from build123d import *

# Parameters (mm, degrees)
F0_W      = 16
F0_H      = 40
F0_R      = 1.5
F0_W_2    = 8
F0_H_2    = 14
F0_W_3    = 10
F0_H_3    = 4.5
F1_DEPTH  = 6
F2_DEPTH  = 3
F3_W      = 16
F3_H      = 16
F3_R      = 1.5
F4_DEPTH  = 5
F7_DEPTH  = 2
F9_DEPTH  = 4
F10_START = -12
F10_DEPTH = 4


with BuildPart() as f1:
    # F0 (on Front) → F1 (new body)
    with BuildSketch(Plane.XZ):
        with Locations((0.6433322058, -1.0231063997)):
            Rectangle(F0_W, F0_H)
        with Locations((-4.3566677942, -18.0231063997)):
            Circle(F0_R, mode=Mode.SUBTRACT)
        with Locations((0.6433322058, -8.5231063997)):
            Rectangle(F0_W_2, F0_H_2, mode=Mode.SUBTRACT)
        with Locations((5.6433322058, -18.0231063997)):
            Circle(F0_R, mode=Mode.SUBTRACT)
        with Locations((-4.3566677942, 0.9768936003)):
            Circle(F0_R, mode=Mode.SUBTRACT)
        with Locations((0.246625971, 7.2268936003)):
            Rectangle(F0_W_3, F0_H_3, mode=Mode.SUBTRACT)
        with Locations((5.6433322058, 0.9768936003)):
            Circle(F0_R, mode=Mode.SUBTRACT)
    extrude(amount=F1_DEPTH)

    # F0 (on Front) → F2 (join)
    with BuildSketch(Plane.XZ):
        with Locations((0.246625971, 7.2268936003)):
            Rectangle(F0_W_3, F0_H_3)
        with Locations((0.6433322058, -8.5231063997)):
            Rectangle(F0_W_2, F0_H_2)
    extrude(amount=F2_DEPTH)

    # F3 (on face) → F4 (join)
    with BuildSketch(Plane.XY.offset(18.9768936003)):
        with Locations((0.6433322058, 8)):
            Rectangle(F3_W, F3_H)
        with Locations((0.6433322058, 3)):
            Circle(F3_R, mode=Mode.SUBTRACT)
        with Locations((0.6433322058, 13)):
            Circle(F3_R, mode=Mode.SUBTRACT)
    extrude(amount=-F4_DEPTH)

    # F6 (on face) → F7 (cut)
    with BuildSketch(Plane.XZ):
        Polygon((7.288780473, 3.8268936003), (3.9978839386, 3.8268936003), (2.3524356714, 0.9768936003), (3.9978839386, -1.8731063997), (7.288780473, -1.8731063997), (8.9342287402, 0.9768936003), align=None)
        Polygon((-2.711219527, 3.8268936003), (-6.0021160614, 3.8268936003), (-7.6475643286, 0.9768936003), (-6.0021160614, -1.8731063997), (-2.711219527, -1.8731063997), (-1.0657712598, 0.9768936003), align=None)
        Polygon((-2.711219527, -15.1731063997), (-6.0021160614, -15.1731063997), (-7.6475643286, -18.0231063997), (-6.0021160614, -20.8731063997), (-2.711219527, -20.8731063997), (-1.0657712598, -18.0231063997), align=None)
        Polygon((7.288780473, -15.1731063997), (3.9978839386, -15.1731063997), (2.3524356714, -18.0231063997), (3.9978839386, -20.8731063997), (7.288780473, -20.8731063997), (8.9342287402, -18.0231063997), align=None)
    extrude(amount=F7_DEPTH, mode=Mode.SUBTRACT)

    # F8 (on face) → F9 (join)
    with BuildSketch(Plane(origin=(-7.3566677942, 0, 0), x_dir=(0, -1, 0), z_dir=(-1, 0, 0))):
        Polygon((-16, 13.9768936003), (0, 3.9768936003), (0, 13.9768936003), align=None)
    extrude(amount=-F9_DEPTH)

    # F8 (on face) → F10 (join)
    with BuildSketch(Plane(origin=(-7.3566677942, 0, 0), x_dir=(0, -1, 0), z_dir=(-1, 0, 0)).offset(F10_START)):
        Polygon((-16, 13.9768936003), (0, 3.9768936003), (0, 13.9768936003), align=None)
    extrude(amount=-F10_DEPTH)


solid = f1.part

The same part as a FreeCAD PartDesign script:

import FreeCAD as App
import Part
import Sketcher

V = App.Vector
Q = App.Units.Quantity


def add_polygon(sketch, points):
    """Adds a closed chain of lines whose ends are joined by coincident constraints."""
    first, n = sketch.GeometryCount, len(points)
    for a, b in zip(points, points[1:] + points[:1]):
        sketch.addGeometry(Part.LineSegment(App.Vector(*a, 0), App.Vector(*b, 0)), False)
    for i in range(n):
        sketch.addConstraint(Sketcher.Constraint("Coincident", first + i, 2, first + (i + 1) % n, 1))

doc = App.newDocument("Part")
params = doc.addObject("Spreadsheet::Sheet", "Params")
for row, (alias, value) in enumerate([
    ("sketch1_diameter", "3 mm"),
    ("sketch1_width", "16 mm"),
    ("sketch1_width2", "8 mm"),
    ("sketch1_width3", "10 mm"),
    ("sketch1_height", "40 mm"),
    ("pad1_length", "6 mm"),
    ("sketch2_width", "10 mm"),
    ("sketch2_width2", "8 mm"),
    ("sketch2_height", "14 mm"),
    ("sketch2_height2", "4.5 mm"),
    ("pad2_length", "3 mm"),
    ("sketch3_diameter", "3 mm"),
    ("sketch3_width", "16 mm"),
    ("pad3_length", "5 mm"),
    ("pocket1_length", "2 mm"),
    ("sketch5_width", "16 mm"),
    ("sketch5_height", "10 mm"),
    ("pad4_length", "4 mm"),
    ("sketch6_width", "16 mm"),
    ("sketch6_height", "10 mm"),
    ("pad5_length", "4 mm"),
], start=1):
    params.set(f"A{row}", alias)
    params.set(f"B{row}", "=" + value)
    params.setAlias(f"B{row}", alias)

body = doc.addObject("PartDesign::Body", "Body")

# Sketch on XZ plane
sketch1 = body.newObject("Sketcher::SketchObject", "Sketch")
sketch1.AttachmentSupport = (doc.getObject("XZ_Plane"), [""])
sketch1.MapMode = "FlatFace"
add_polygon(sketch1, [(-7.4, 19), (-7.4, -21), (8.6, -21), (8.6, 19)])  # lines 0-3
sketch1.addGeometry(Part.Circle(V(-4.4, -18, 0), V(0, 0, 1), 1.5), False)  # 4
sketch1.addGeometry(Part.Circle(V(5.6, -18, 0), V(0, 0, 1), 1.5), False)  # 5
add_polygon(sketch1, [(4.6, -15.5), (-3.4, -15.5), (-3.4, -1.5), (4.6, -1.5)])  # lines 6-9
sketch1.addGeometry(Part.Circle(V(-4.4, 1, 0), V(0, 0, 1), 1.5), False)  # 10
add_polygon(sketch1, [(5.2, 5), (-4.8, 5), (-4.8, 9.5), (5.2, 9.5)])  # lines 11-14
sketch1.addGeometry(Part.Circle(V(5.6, 1, 0), V(0, 0, 1), 1.5), False)  # 15
sketch1.addConstraint(Sketcher.Constraint("Vertical", 0))
sketch1.addConstraint(Sketcher.Constraint("Horizontal", 1))
sketch1.addConstraint(Sketcher.Constraint("Vertical", 2))
sketch1.addConstraint(Sketcher.Constraint("Horizontal", 3))
sketch1.addConstraint(Sketcher.Constraint("Horizontal", 6))
sketch1.addConstraint(Sketcher.Constraint("Vertical", 7))
sketch1.addConstraint(Sketcher.Constraint("Horizontal", 8))
sketch1.addConstraint(Sketcher.Constraint("Vertical", 9))
sketch1.addConstraint(Sketcher.Constraint("Horizontal", 11))
sketch1.addConstraint(Sketcher.Constraint("Vertical", 12))
sketch1.addConstraint(Sketcher.Constraint("Horizontal", 13))
sketch1.addConstraint(Sketcher.Constraint("Vertical", 14))
sketch1.addConstraint(Sketcher.Constraint("Equal", 4, 5))
sketch1.addConstraint(Sketcher.Constraint("Equal", 5, 10))
sketch1.addConstraint(Sketcher.Constraint("Equal", 10, 15))
sketch1.addConstraint(Sketcher.Constraint("Horizontal", 4, 3, 5, 3))
sketch1.addConstraint(Sketcher.Constraint("Horizontal", 10, 3, 15, 3))
sketch1.addConstraint(Sketcher.Constraint("Vertical", 4, 3, 10, 3))
sketch1.addConstraint(Sketcher.Constraint("Vertical", 5, 3, 15, 3))
sketch1.addConstraint(Sketcher.Constraint("Diameter", 4, Q("3 mm")))
sketch1.addConstraint(Sketcher.Constraint("DistanceX", 1, 1, 1, 2, Q("16 mm")))
sketch1.addConstraint(Sketcher.Constraint("DistanceX", 6, 2, 6, 1, Q("8 mm")))
sketch1.addConstraint(Sketcher.Constraint("DistanceX", 11, 2, 11, 1, Q("10 mm")))
sketch1.addConstraint(Sketcher.Constraint("DistanceY", 0, 2, 0, 1, Q("40 mm")))
sketch1.addConstraint(Sketcher.Constraint("DistanceY", 7, 1, 7, 2, Q("14 mm")))
sketch1.addConstraint(Sketcher.Constraint("DistanceY", 12, 1, 12, 2, Q("4.5 mm")))
sketch1.addConstraint(Sketcher.Constraint("DistanceX", 4, 3, 5, 3, Q("10 mm")))
sketch1.addConstraint(Sketcher.Constraint("DistanceY", 4, 3, 10, 3, Q("19 mm")))
sketch1.addConstraint(Sketcher.Constraint("DistanceX", 0, 2, 4, 3, Q("3 mm")))
sketch1.addConstraint(Sketcher.Constraint("DistanceY", 0, 2, 4, 3, Q("3 mm")))
sketch1.addConstraint(Sketcher.Constraint("DistanceX", 4, 3, 6, 2, Q("1 mm")))
sketch1.addConstraint(Sketcher.Constraint("DistanceY", 10, 3, 11, 2, Q("4 mm")))
sketch1.addConstraint(Sketcher.Constraint("DistanceY", 7, 2, 12, 2, Q("11 mm")))
sketch1.addConstraint(Sketcher.Constraint("DistanceX", 4, 3, -1, 1, Q("4.356668 mm")))
sketch1.addConstraint(Sketcher.Constraint("DistanceY", 4, 3, -1, 1, Q("18.023106 mm")))
sketch1.addConstraint(Sketcher.Constraint("DistanceX", 11, 2, -1, 1, Q("4.753374 mm")))
sketch1.setExpression("Constraints[31]", "Params.sketch1_diameter")
sketch1.setExpression("Constraints[32]", "Params.sketch1_width")
sketch1.setExpression("Constraints[33]", "Params.sketch1_width2")
sketch1.setExpression("Constraints[34]", "Params.sketch1_width3")
sketch1.setExpression("Constraints[35]", "Params.sketch1_height")
pad1 = body.newObject("PartDesign::Pad", "Pad")
pad1.Profile = sketch1
pad1.setExpression("Length", "Params.pad1_length")

# Sketch on XZ plane
sketch2 = body.newObject("Sketcher::SketchObject", "Sketch001")
sketch2.AttachmentSupport = (doc.getObject("XZ_Plane"), [""])
sketch2.MapMode = "FlatFace"
add_polygon(sketch2, [(-4.8, 9.5), (-4.8, 5), (5.2, 5), (5.2, 9.5)])  # lines 0-3
add_polygon(sketch2, [(-3.4, -1.5), (-3.4, -15.5), (4.6, -15.5), (4.6, -1.5)])  # lines 4-7
sketch2.addConstraint(Sketcher.Constraint("Vertical", 0))
sketch2.addConstraint(Sketcher.Constraint("Horizontal", 1))
sketch2.addConstraint(Sketcher.Constraint("Vertical", 2))
sketch2.addConstraint(Sketcher.Constraint("Horizontal", 3))
sketch2.addConstraint(Sketcher.Constraint("Vertical", 4))
sketch2.addConstraint(Sketcher.Constraint("Horizontal", 5))
sketch2.addConstraint(Sketcher.Constraint("Vertical", 6))
sketch2.addConstraint(Sketcher.Constraint("Horizontal", 7))
sketch2.addConstraint(Sketcher.Constraint("DistanceX", 1, 1, 1, 2, Q("10 mm")))
sketch2.addConstraint(Sketcher.Constraint("DistanceX", 5, 1, 5, 2, Q("8 mm")))
sketch2.addConstraint(Sketcher.Constraint("DistanceY", 4, 2, 4, 1, Q("14 mm")))
sketch2.addConstraint(Sketcher.Constraint("DistanceY", 0, 2, 0, 1, Q("4.5 mm")))
sketch2.addConstraint(Sketcher.Constraint("DistanceY", 4, 2, 3, 2, Q("25 mm")))
sketch2.addConstraint(Sketcher.Constraint("DistanceX", 0, 2, -1, 1, Q("4.753374 mm")))
sketch2.addConstraint(Sketcher.Constraint("DistanceY", -1, 1, 0, 2, Q("4.976894 mm")))
sketch2.addConstraint(Sketcher.Constraint("DistanceX", 4, 2, -1, 1, Q("3.356668 mm")))
sketch2.setExpression("Constraints[16]", "Params.sketch2_width")
sketch2.setExpression("Constraints[17]", "Params.sketch2_width2")
sketch2.setExpression("Constraints[18]", "Params.sketch2_height")
sketch2.setExpression("Constraints[19]", "Params.sketch2_height2")
pad2 = body.newObject("PartDesign::Pad", "Pad001")
pad2.Profile = sketch2
pad2.setExpression("Length", "Params.pad2_length")

# Sketch on XY plane
sketch3 = body.newObject("Sketcher::SketchObject", "Sketch002")
sketch3.AttachmentSupport = (doc.getObject("XY_Plane"), [""])
sketch3.MapMode = "FlatFace"
sketch3.AttachmentOffset = App.Placement(V(0, 0, 18.976894), App.Rotation())
add_polygon(sketch3, [(-7.4, 16), (-7.4, 0), (8.6, 0), (8.6, 16)])  # lines 0-3
sketch3.addGeometry(Part.Circle(V(0.6, 3, 0), V(0, 0, 1), 1.5), False)  # 4
sketch3.addGeometry(Part.Circle(V(0.6, 13, 0), V(0, 0, 1), 1.5), False)  # 5
sketch3.addConstraint(Sketcher.Constraint("Vertical", 0))
sketch3.addConstraint(Sketcher.Constraint("Horizontal", 1))
sketch3.addConstraint(Sketcher.Constraint("Vertical", 2))
sketch3.addConstraint(Sketcher.Constraint("Horizontal", 3))
sketch3.addConstraint(Sketcher.Constraint("Equal", 4, 5))
sketch3.addConstraint(Sketcher.Constraint("PointOnObject", 0, 2, -1))
sketch3.addConstraint(Sketcher.Constraint("Vertical", 4, 3, 5, 3))
sketch3.addConstraint(Sketcher.Constraint("Equal", 3, 0))
sketch3.addConstraint(Sketcher.Constraint("Diameter", 4, Q("3 mm")))
sketch3.addConstraint(Sketcher.Constraint("DistanceX", 1, 1, 1, 2, Q("16 mm")))
sketch3.addConstraint(Sketcher.Constraint("DistanceY", -1, 1, 4, 3, Q("3 mm")))
sketch3.addConstraint(Sketcher.Constraint("DistanceY", -1, 1, 5, 3, Q("13 mm")))
sketch3.addConstraint(Sketcher.Constraint("DistanceX", 0, 2, 4, 3, Q("8 mm")))
sketch3.addConstraint(Sketcher.Constraint("DistanceX", -1, 1, 4, 3, Q("0.643332 mm")))
sketch3.setExpression("Constraints[12]", "Params.sketch3_diameter")
sketch3.setExpression("Constraints[13]", "Params.sketch3_width")
pad3 = body.newObject("PartDesign::Pad", "Pad002")
pad3.Profile = sketch3
pad3.setExpression("Length", "Params.pad3_length")
pad3.Reversed = True

# Sketch on XZ plane
sketch4 = body.newObject("Sketcher::SketchObject", "Sketch003")
sketch4.AttachmentSupport = (doc.getObject("XZ_Plane"), [""])
sketch4.MapMode = "FlatFace"
add_polygon(sketch4, [(7.3, 3.8), (4, 3.8), (2.4, 1), (4, -1.9), (7.3, -1.9), (8.9, 1)])  # lines 0-5
add_polygon(sketch4, [(-2.7, 3.8), (-6, 3.8), (-7.6, 1), (-6, -1.9), (-2.7, -1.9), (-1.1, 1)])  # lines 6-11
add_polygon(sketch4, [(-2.7, -15.2), (-6, -15.2), (-7.6, -18), (-6, -20.9), (-2.7, -20.9), (-1.1, -18)])  # lines 12-17
add_polygon(sketch4, [(7.3, -15.2), (4, -15.2), (2.4, -18), (4, -20.9), (7.3, -20.9), (8.9, -18)])  # lines 18-23
sketch4.addConstraint(Sketcher.Constraint("Horizontal", 0))
sketch4.addConstraint(Sketcher.Constraint("Horizontal", 3))
sketch4.addConstraint(Sketcher.Constraint("Horizontal", 6))
sketch4.addConstraint(Sketcher.Constraint("Horizontal", 9))
sketch4.addConstraint(Sketcher.Constraint("Horizontal", 12))
sketch4.addConstraint(Sketcher.Constraint("Horizontal", 15))
sketch4.addConstraint(Sketcher.Constraint("Horizontal", 18))
sketch4.addConstraint(Sketcher.Constraint("Horizontal", 21))
sketch4.addConstraint(Sketcher.Constraint("Parallel", 1, 4))
sketch4.addConstraint(Sketcher.Constraint("Parallel", 2, 5))
sketch4.addConstraint(Sketcher.Constraint("Parallel", 4, 7))
sketch4.addConstraint(Sketcher.Constraint("Parallel", 5, 8))
sketch4.addConstraint(Sketcher.Constraint("Parallel", 7, 10))
sketch4.addConstraint(Sketcher.Constraint("Parallel", 8, 11))
sketch4.addConstraint(Sketcher.Constraint("Parallel", 10, 13))
sketch4.addConstraint(Sketcher.Constraint("Parallel", 11, 14))
sketch4.addConstraint(Sketcher.Constraint("Parallel", 13, 16))
sketch4.addConstraint(Sketcher.Constraint("Parallel", 14, 17))
sketch4.addConstraint(Sketcher.Constraint("Parallel", 16, 19))
sketch4.addConstraint(Sketcher.Constraint("Parallel", 17, 20))
sketch4.addConstraint(Sketcher.Constraint("Parallel", 19, 22))
sketch4.addConstraint(Sketcher.Constraint("Parallel", 20, 23))
sketch4.addConstraint(Sketcher.Constraint("Horizontal", 1, 2, 4, 2))
sketch4.addConstraint(Sketcher.Constraint("Horizontal", 5, 2, 6, 2))
sketch4.addConstraint(Sketcher.Constraint("Horizontal", 4, 2, 7, 2))
sketch4.addConstraint(Sketcher.Constraint("Horizontal", 3, 2, 8, 2))
sketch4.addConstraint(Sketcher.Constraint("Horizontal", 7, 2, 10, 2))
sketch4.addConstraint(Sketcher.Constraint("Horizontal", 13, 2, 16, 2))
sketch4.addConstraint(Sketcher.Constraint("Horizontal", 17, 2, 18, 2))
sketch4.addConstraint(Sketcher.Constraint("Horizontal", 16, 2, 19, 2))
sketch4.addConstraint(Sketcher.Constraint("Horizontal", 15, 2, 20, 2))
sketch4.addConstraint(Sketcher.Constraint("Horizontal", 19, 2, 22, 2))
sketch4.addConstraint(Sketcher.Constraint("Vertical", 0, 2, 2, 2))
sketch4.addConstraint(Sketcher.Constraint("Vertical", 3, 2, 5, 2))
sketch4.addConstraint(Sketcher.Constraint("Vertical", 8, 2, 12, 2))
sketch4.addConstraint(Sketcher.Constraint("Vertical", 7, 2, 13, 2))
sketch4.addConstraint(Sketcher.Constraint("Vertical", 12, 2, 14, 2))
sketch4.addConstraint(Sketcher.Constraint("Vertical", 11, 2, 15, 2))
sketch4.addConstraint(Sketcher.Constraint("Vertical", 2, 2, 18, 2))
sketch4.addConstraint(Sketcher.Constraint("Vertical", 5, 2, 21, 2))
sketch4.addConstraint(Sketcher.Constraint("Equal", 3, 6))
sketch4.addConstraint(Sketcher.Constraint("Angle", 1, Q("-120 deg")))
sketch4.addConstraint(Sketcher.Constraint("DistanceX", 6, 2, 0, 2, Q("10 mm")))
sketch4.addConstraint(Sketcher.Constraint("DistanceY", 13, 2, 7, 2, Q("19 mm")))
sketch4.addConstraint(Sketcher.Constraint("DistanceY", 2, 2, 0, 2, Q("5.7 mm")))
sketch4.addConstraint(Sketcher.Constraint("DistanceX", 0, 2, 0, 1, Q("3.290897 mm")))
sketch4.addConstraint(Sketcher.Constraint("DistanceX", -1, 1, 3, 2, Q("7.28878 mm")))
sketch4.addConstraint(Sketcher.Constraint("DistanceY", -1, 1, 0, 2, Q("3.826894 mm")))
pocket1 = body.newObject("PartDesign::Pocket", "Pocket")
pocket1.Profile = sketch4
pocket1.setExpression("Length", "Params.pocket1_length")
pocket1.Reversed = True

# Sketch on YZ plane
sketch5 = body.newObject("Sketcher::SketchObject", "Sketch004")
sketch5.AttachmentSupport = (doc.getObject("YZ_Plane"), [""])
sketch5.MapMode = "FlatFace"
sketch5.AttachmentOffset = App.Placement(V(0, 0, -7.356668), App.Rotation())
add_polygon(sketch5, [(16, 14), (0, 4), (0, 14)])  # lines 0-2
sketch5.addConstraint(Sketcher.Constraint("Vertical", 1))
sketch5.addConstraint(Sketcher.Constraint("Horizontal", 2))
sketch5.addConstraint(Sketcher.Constraint("PointOnObject", 0, 2, -2))
sketch5.addConstraint(Sketcher.Constraint("DistanceX", 2, 1, 2, 2, Q("16 mm")))
sketch5.addConstraint(Sketcher.Constraint("DistanceY", 1, 1, 1, 2, Q("10 mm")))
sketch5.addConstraint(Sketcher.Constraint("DistanceY", -1, 1, 0, 2, Q("3.976894 mm")))
sketch5.setExpression("Constraints[6]", "Params.sketch5_width")
sketch5.setExpression("Constraints[7]", "Params.sketch5_height")
pad4 = body.newObject("PartDesign::Pad", "Pad003")
pad4.Profile = sketch5
pad4.setExpression("Length", "Params.pad4_length")

# Sketch on YZ plane
sketch6 = body.newObject("Sketcher::SketchObject", "Sketch005")
sketch6.AttachmentSupport = (doc.getObject("YZ_Plane"), [""])
sketch6.MapMode = "FlatFace"
sketch6.AttachmentOffset = App.Placement(V(0, 0, 4.643332), App.Rotation())
add_polygon(sketch6, [(16, 14), (0, 4), (0, 14)])  # lines 0-2
sketch6.addConstraint(Sketcher.Constraint("Vertical", 1))
sketch6.addConstraint(Sketcher.Constraint("Horizontal", 2))
sketch6.addConstraint(Sketcher.Constraint("PointOnObject", 0, 2, -2))
sketch6.addConstraint(Sketcher.Constraint("DistanceX", 2, 1, 2, 2, Q("16 mm")))
sketch6.addConstraint(Sketcher.Constraint("DistanceY", 1, 1, 1, 2, Q("10 mm")))
sketch6.addConstraint(Sketcher.Constraint("DistanceY", -1, 1, 0, 2, Q("3.976894 mm")))
sketch6.setExpression("Constraints[6]", "Params.sketch6_width")
sketch6.setExpression("Constraints[7]", "Params.sketch6_height")
pad5 = body.newObject("PartDesign::Pad", "Pad004")
pad5.Profile = sketch6
pad5.setExpression("Length", "Params.pad5_length")

doc.recompute()
